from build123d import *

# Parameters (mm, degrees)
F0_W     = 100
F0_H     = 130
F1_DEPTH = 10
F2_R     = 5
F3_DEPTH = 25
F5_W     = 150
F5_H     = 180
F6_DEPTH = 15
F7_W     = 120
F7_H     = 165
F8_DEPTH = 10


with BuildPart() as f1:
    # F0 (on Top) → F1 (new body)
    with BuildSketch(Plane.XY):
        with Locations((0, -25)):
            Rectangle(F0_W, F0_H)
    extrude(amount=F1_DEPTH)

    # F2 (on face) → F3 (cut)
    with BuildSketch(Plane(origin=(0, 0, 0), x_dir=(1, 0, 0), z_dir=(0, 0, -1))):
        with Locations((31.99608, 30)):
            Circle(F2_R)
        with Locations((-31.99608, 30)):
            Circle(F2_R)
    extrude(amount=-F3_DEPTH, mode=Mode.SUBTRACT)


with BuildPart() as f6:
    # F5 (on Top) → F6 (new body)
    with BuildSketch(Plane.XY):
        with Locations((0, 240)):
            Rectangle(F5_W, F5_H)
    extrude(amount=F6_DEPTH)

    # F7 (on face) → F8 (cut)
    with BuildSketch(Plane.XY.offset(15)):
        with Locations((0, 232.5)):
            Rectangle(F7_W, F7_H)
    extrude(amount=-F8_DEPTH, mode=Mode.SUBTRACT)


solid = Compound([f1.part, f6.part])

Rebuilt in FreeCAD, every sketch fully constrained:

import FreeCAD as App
import Part
import Sketcher


def add_polygon(sketch, points):
    """Adds a closed chain of lines whose ends are joined by coincident constraints."""
    first, n = sketch.GeometryCount, len(points)
    for a, b in zip(points, points[1:] + points[:1]):
        sketch.addGeometry(Part.LineSegment(App.Vector(*a, 0), App.Vector(*b, 0)), False)
    for i in range(n):
        sketch.addConstraint(Sketcher.Constraint("Coincident", first + i, 2, first + (i + 1) % n, 1))

doc = App.newDocument("Part")
body = doc.addObject("PartDesign::Body", "Body")

sketch1 = body.newObject("Sketcher::SketchObject", "Sketch")
sketch1.AttachmentSupport = (doc.getObject("XY_Plane"), [""])
sketch1.MapMode = "FlatFace"
add_polygon(sketch1, [(-50, 40), (-50, -90), (50, -90), (50, 40)])
sketch1.addConstraint([
    Sketcher.Constraint("Vertical", 0),
    Sketcher.Constraint("Horizontal", 1),
    Sketcher.Constraint("Vertical", 2),
    Sketcher.Constraint("Horizontal", 3),
    Sketcher.Constraint("DistanceX", 1, 1, 1, 2, 100.0),
    Sketcher.Constraint("DistanceY", 0, 2, 0, 1, 130.0),
    Sketcher.Constraint("DistanceX", 0, 2, -1, 1, 50.0),
    Sketcher.Constraint("DistanceY", 0, 2, -1, 1, 90.0),
])
pad1 = body.newObject("PartDesign::Pad", "Pad")
pad1.Profile = sketch1
pad1.Length = 10

sketch2 = body.newObject("Sketcher::SketchObject", "Sketch001")
sketch2.AttachmentSupport = (doc.getObject("XY_Plane"), [""])
sketch2.MapMode = "FlatFace"
sketch2.addGeometry([
    Part.Circle(App.Vector(32, -30, 0), App.Vector(0, 0, 1), 5),
    Part.Circle(App.Vector(-32, -30, 0), App.Vector(0, 0, 1), 5),
], False)
sketch2.addConstraint([
    Sketcher.Constraint("Equal", 0, 1),
    Sketcher.Constraint("Symmetric", 0, 3, 1, 3, -2),
    Sketcher.Constraint("Diameter", 0, 10.0),
    Sketcher.Constraint("DistanceY", 0, 3, -1, 1, 30.0),
    Sketcher.Constraint("DistanceX", -1, 1, 0, 3, 31.99608),
])
pocket1 = body.newObject("PartDesign::Pocket", "Pocket")
pocket1.Profile = sketch2
pocket1.Length = 25
pocket1.Reversed = True
body2 = doc.addObject("PartDesign::Body", "Body001")

sketch3 = body2.newObject("Sketcher::SketchObject", "Sketch002")
sketch3.AttachmentSupport = (doc.getObject("XY_Plane001"), [""])
sketch3.MapMode = "FlatFace"
add_polygon(sketch3, [(-75, 330), (-75, 150), (75, 150), (75, 330)])
sketch3.addConstraint([
    Sketcher.Constraint("Vertical", 0),
    Sketcher.Constraint("Horizontal", 1),
    Sketcher.Constraint("Vertical", 2),
    Sketcher.Constraint("Horizontal", 3),
    Sketcher.Constraint("DistanceX", 1, 1, 1, 2, 150.0),
    Sketcher.Constraint("DistanceY", 0, 2, 0, 1, 180.0),
    Sketcher.Constraint("DistanceX", 0, 2, -1, 1, 75.0),
    Sketcher.Constraint("DistanceY", -1, 1, 0, 2, 150.0),
])
pad2 = body2.newObject("PartDesign::Pad", "Pad001")
pad2.Profile = sketch3
pad2.Length = 15

sketch4 = body2.newObject("Sketcher::SketchObject", "Sketch003")
sketch4.AttachmentSupport = (doc.getObject("XY_Plane001"), [""])
sketch4.MapMode = "FlatFace"
sketch4.AttachmentOffset = App.Placement(App.Vector(0, 0, 15), App.Rotation())
add_polygon(sketch4, [(-60, 315), (-60, 150), (60, 150), (60, 315)])
sketch4.addConstraint([
    Sketcher.Constraint("Vertical", 0),
    Sketcher.Constraint("Horizontal", 1),
    Sketcher.Constraint("Vertical", 2),
    Sketcher.Constraint("Horizontal", 3),
    Sketcher.Constraint("DistanceX", 1, 1, 1, 2, 120.0),
    Sketcher.Constraint("DistanceY", 0, 2, 0, 1, 165.0),
    Sketcher.Constraint("DistanceX", 0, 2, -1, 1, 60.0),
    Sketcher.Constraint("DistanceY", -1, 1, 0, 2, 150.0),
])
pocket2 = body2.newObject("PartDesign::Pocket", "Pocket001")
pocket2.Profile = sketch4
pocket2.Length = 10

doc.recompute()
